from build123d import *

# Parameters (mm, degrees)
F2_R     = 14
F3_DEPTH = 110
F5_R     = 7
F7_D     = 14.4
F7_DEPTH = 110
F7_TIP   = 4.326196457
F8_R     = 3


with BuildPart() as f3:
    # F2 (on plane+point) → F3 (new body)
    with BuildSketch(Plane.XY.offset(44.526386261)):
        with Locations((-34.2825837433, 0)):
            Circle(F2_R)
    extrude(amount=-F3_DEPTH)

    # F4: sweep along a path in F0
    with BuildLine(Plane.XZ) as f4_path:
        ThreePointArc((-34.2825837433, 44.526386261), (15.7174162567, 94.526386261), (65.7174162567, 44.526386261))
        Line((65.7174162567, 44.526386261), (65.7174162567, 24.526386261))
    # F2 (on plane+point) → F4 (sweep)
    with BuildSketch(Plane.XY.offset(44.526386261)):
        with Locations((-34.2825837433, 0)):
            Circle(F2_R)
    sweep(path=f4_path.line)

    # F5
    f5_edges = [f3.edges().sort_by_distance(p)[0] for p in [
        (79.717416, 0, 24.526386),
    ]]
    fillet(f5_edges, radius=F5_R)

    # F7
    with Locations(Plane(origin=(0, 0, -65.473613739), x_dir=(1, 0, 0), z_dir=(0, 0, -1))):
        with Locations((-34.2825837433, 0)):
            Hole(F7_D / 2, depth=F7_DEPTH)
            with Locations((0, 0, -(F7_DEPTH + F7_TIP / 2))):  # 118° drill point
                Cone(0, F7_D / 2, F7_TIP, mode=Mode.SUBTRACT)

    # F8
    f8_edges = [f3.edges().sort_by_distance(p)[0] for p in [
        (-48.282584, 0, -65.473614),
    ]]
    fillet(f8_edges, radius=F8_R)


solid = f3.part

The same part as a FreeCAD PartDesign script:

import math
import FreeCAD as App
import Part
import Sketcher

V = App.Vector


def edges_at(feature, points):
    """Names of the edges that pass closest to the given points."""
    edges = feature.Shape.Edges
    near = lambda p: min(range(len(edges)), key=lambda i: edges[i].distToShape(Part.Vertex(*p))[0])
    return sorted({f"Edge{near(p) + 1}" for p in points})

doc = App.newDocument("Part")
body = doc.addObject("PartDesign::Body", "Body")

sketch1 = doc.addObject("Sketcher::SketchObject", "Sketch")
body.addObject(sketch1)
sketch1.AttachmentSupport = (doc.XY_Plane, [""])
sketch1.MapMode = "FlatFace"
sketch1.AttachmentOffset = App.Placement(V(0, 0, 44.526386), App.Rotation())
sketch1.addGeometry(Part.Circle(V(-34, 0, 0), V(0, 0, 1), 14), False)
sketch1.addConstraint([
    Sketcher.Constraint("PointOnObject", 0, 3, -1),
    Sketcher.Constraint("Diameter", 0, 28.0),
    Sketcher.Constraint("DistanceX", 0, 3, -1, 1, 34.282584),
])
pad1 = doc.addObject("PartDesign::Pad", "Pad")
body.addObject(pad1)
pad1.Profile = sketch1
pad1.Length = 110
pad1.Reversed = True

sketch2 = doc.addObject("Sketcher::SketchObject", "Sketch001")
body.addObject(sketch2)
sketch2.AttachmentSupport = (doc.XY_Plane, [""])
sketch2.MapMode = "FlatFace"
sketch2.AttachmentOffset = App.Placement(V(0, 0, 44.526386), App.Rotation())
sketch2.addGeometry(Part.Circle(V(-34, 0, 0), V(0, 0, 1), 14), False)
sketch2.addConstraint([
    Sketcher.Constraint("PointOnObject", 0, 3, -1),
    Sketcher.Constraint("Diameter", 0, 28.0),
    Sketcher.Constraint("DistanceX", 0, 3, -1, 1, 34.282584),
])

sketch3 = doc.addObject("Sketcher::SketchObject", "Sketch002")
body.addObject(sketch3)
sketch3.AttachmentSupport = (doc.XZ_Plane, [""])
sketch3.MapMode = "FlatFace"
sketch3.addGeometry([
    Part.ArcOfCircle(Part.Circle(V(16, 45, 0), V(0, 0, 1), 50), math.radians(0), math.radians(180)),
    Part.LineSegment(V(66, 45, 0), V(66, 25, 0)),
], False)
sketch3.addConstraint([
    Sketcher.Constraint("Tangent", 0, 1, 1, 1),
    Sketcher.Constraint("Vertical", 1),
    Sketcher.Constraint("Radius", 0, 50.0),
    Sketcher.Constraint("DistanceY", 1, 2, 1, 1, 20.0),
    Sketcher.Constraint("DistanceY", 1, 2, 0, 2, 20.0),
    Sketcher.Constraint("DistanceX", -1, 1, 0, 3, 15.717416),
    Sketcher.Constraint("DistanceY", -1, 1, 0, 3, 44.526386),
])
doc.recompute()

additivepipe = doc.addObject("PartDesign::AdditivePipe", "AdditivePipe")
body.addObject(additivepipe)
additivepipe.Profile = sketch2
additivepipe.Spine = (sketch3, ["Edge1", "Edge2"])
doc.recompute()

fillet = doc.addObject("PartDesign::Fillet", "Fillet")
body.addObject(fillet)
fillet.Base = (additivepipe, edges_at(additivepipe, [(79.717, 0, 24.526)]))
fillet.Radius = 7

sketch4 = doc.addObject("Sketcher::SketchObject", "Sketch003")
body.addObject(sketch4)
sketch4.AttachmentSupport = (doc.XY_Plane, [""])
sketch4.MapMode = "FlatFace"
sketch4.AttachmentOffset = App.Placement(V(0, 0, -65.473614), App.Rotation())
sketch4.addGeometry(Part.Circle(V(-34, 0, 0), V(0, 0, 1), 7), False)
sketch4.addConstraint([
    Sketcher.Constraint("PointOnObject", 0, 3, -1),
    Sketcher.Constraint("Diameter", 0, 14.4),
    Sketcher.Constraint("DistanceX", 0, 3, -1, 1, 34.282584),
])
doc.recompute()
hole = doc.addObject("PartDesign::Hole", "Hole")
body.addObject(hole)
hole.Profile = sketch4
hole.ThreadType = "None"
hole.Diameter = 14.4
hole.DepthType = "Dimension"
hole.Depth = 110
hole.DrillPoint = "Angled"
hole.DrillPointAngle = 118
hole.Reversed = True
doc.recompute()

fillet2 = doc.addObject("PartDesign::Fillet", "Fillet001")
body.addObject(fillet2)
fillet2.Base = (hole, edges_at(hole, [(-48.283, 0, -65.474)]))
fillet2.Radius = 3

doc.recompute()
